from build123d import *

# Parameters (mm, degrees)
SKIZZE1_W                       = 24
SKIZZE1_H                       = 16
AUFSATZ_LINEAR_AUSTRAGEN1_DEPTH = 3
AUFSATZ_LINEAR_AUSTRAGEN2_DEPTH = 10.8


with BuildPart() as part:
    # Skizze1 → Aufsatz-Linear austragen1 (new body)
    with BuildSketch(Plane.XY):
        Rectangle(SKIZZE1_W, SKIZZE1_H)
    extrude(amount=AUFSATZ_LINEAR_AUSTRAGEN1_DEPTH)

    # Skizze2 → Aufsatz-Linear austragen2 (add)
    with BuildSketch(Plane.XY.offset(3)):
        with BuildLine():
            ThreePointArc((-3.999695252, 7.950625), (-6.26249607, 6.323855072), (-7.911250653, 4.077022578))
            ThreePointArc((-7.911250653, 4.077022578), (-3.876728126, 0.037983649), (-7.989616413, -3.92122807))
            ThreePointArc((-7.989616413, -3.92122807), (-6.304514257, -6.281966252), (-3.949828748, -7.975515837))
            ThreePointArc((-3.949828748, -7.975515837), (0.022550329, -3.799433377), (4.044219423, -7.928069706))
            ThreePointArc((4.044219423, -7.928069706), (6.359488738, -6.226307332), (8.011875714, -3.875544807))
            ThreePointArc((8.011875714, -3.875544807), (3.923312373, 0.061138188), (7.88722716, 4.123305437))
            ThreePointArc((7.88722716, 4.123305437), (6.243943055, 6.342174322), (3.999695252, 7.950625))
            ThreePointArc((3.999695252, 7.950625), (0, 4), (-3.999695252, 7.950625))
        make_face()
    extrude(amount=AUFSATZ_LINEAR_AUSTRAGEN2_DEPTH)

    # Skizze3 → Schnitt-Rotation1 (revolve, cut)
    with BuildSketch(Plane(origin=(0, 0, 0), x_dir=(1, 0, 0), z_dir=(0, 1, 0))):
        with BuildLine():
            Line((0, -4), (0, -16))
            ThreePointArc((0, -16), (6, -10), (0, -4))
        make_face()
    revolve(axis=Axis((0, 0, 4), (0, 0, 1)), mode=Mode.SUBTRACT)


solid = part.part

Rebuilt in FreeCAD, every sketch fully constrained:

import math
import FreeCAD as App
import Part
import Sketcher

V = App.Vector


def add_polygon(sketch, points):
    """Adds a closed chain of lines whose ends are joined by coincident constraints."""
    first, n = sketch.GeometryCount, len(points)
    for a, b in zip(points, points[1:] + points[:1]):
        sketch.addGeometry(Part.LineSegment(App.Vector(*a, 0), App.Vector(*b, 0)), False)
    for i in range(n):
        sketch.addConstraint(Sketcher.Constraint("Coincident", first + i, 2, first + (i + 1) % n, 1))

doc = App.newDocument("Part")
body = doc.addObject("PartDesign::Body", "Body")

sketch1 = doc.addObject("Sketcher::SketchObject", "Sketch")
body.addObject(sketch1)
sketch1.AttachmentSupport = (doc.XY_Plane, [""])
sketch1.MapMode = "FlatFace"
add_polygon(sketch1, [(-12, 8), (-12, -8), (12, -8), (12, 8)])
sketch1.addConstraint(Sketcher.Constraint("Vertical", 0))
sketch1.addConstraint(Sketcher.Constraint("Horizontal", 1))
sketch1.addConstraint(Sketcher.Constraint("Vertical", 2))
sketch1.addConstraint(Sketcher.Constraint("Horizontal", 3))
sketch1.addConstraint(Sketcher.Constraint("Symmetric", 0, 2, 2, 2, -1, 1))
sketch1.addConstraint(Sketcher.Constraint("DistanceX", 1, 1, 1, 2, 24.0))
sketch1.addConstraint(Sketcher.Constraint("DistanceY", 0, 2, 0, 1, 16.0))
pad1 = doc.addObject("PartDesign::Pad", "Pad")
body.addObject(pad1)
pad1.Profile = sketch1
pad1.Length = 3

sketch2 = doc.addObject("Sketcher::SketchObject", "Sketch001")
body.addObject(sketch2)
sketch2.AttachmentSupport = (doc.XY_Plane, [""])
sketch2.MapMode = "FlatFace"
sketch2.AttachmentOffset = App.Placement(V(0, 0, 3), App.Rotation())
sketch2.addGeometry(Part.ArcOfCircle(Part.Circle(V(0, 0, 0), V(0, 0, 1), 8.9), math.radians(117), math.radians(153)), False)
sketch2.addGeometry(Part.ArcOfCircle(Part.Circle(V(-7.9, 0.1, 0), V(0, 0, 1), 4), math.radians(-92), math.radians(90)), False)
sketch2.addGeometry(Part.ArcOfCircle(Part.Circle(V(0, 0, 0), V(0, 0, 1), 8.9), math.radians(-154), math.radians(-116)), False)
sketch2.addGeometry(Part.ArcOfCircle(Part.Circle(V(0, -7.8, 0), V(0, 0, 1), 4), math.radians(-2), math.radians(183)), False)
sketch2.addGeometry(Part.ArcOfCircle(Part.Circle(V(0, 0, 0), V(0, 0, 1), 8.9), math.radians(-63), math.radians(-26)), False)
sketch2.addGeometry(Part.ArcOfCircle(Part.Circle(V(7.9, 0.1, 0), V(0, 0, 1), 4), math.radians(91), math.radians(271)), False)
sketch2.addGeometry(Part.ArcOfCircle(Part.Circle(V(0, 0, 0), V(0, 0, 1), 8.9), math.radians(28), math.radians(63)), False)
sketch2.addGeometry(Part.ArcOfCircle(Part.Circle(V(0, 8, 0), V(0, 0, 1), 4), math.radians(-179), math.radians(-1)), False)
sketch2.addConstraint(Sketcher.Constraint("Coincident", 0, 2, 1, 2))
sketch2.addConstraint(Sketcher.Constraint("Coincident", 1, 1, 2, 1))
sketch2.addConstraint(Sketcher.Constraint("Coincident", 2, 2, 3, 2))
sketch2.addConstraint(Sketcher.Constraint("Coincident", 3, 1, 4, 1))
sketch2.addConstraint(Sketcher.Constraint("Coincident", 4, 2, 5, 2))
sketch2.addConstraint(Sketcher.Constraint("Coincident", 5, 1, 6, 1))
sketch2.addConstraint(Sketcher.Constraint("Coincident", 6, 2, 7, 2))
sketch2.addConstraint(Sketcher.Constraint("Coincident", 7, 1, 0, 1))
sketch2.addConstraint(Sketcher.Constraint("Coincident", 0, 3, -1, 1))
sketch2.addConstraint(Sketcher.Constraint("Coincident", 2, 3, -1, 1))
sketch2.addConstraint(Sketcher.Constraint("Coincident", 4, 3, -1, 1))
sketch2.addConstraint(Sketcher.Constraint("Coincident", 6, 3, -1, 1))
sketch2.addConstraint(Sketcher.Constraint("Equal", 0, 2))
sketch2.addConstraint(Sketcher.Constraint("Equal", 1, 3))
sketch2.addConstraint(Sketcher.Constraint("Equal", 2, 4))
sketch2.addConstraint(Sketcher.Constraint("Equal", 3, 5))
sketch2.addConstraint(Sketcher.Constraint("Equal", 4, 6))
sketch2.addConstraint(Sketcher.Constraint("Equal", 5, 7))
sketch2.addConstraint(Sketcher.Constraint("PointOnObject", 7, 3, -2))
sketch2.addConstraint(Sketcher.Constraint("Radius", 1, 4.0))
sketch2.addConstraint(Sketcher.Constraint("Radius", 0, 8.9))
sketch2.addConstraint(Sketcher.Constraint("DistanceY", -1, 1, 7, 3, 8.0))
sketch2.addConstraint(Sketcher.Constraint("DistanceY", 1, 1, 1, 3, 3.998401))
sketch2.addConstraint(Sketcher.Constraint("DistanceX", 5, 1, 5, 3, 0.0356))
sketch2.addConstraint(Sketcher.Constraint("DistanceX", -1, 1, 3, 3, 0.046291))
sketch2.addConstraint(Sketcher.Constraint("DistanceX", 0, 2, -1, 1, 7.911251))
sketch2.addConstraint(Sketcher.Constraint("DistanceX", 2, 2, -1, 1, 3.949829))
sketch2.addConstraint(Sketcher.Constraint("DistanceY", 1, 3, 5, 3, 0.046291))
pad2 = doc.addObject("PartDesign::Pad", "Pad001")
body.addObject(pad2)
pad2.Profile = sketch2
pad2.Length = 10.8

sketch3 = doc.addObject("Sketcher::SketchObject", "Sketch002")
body.addObject(sketch3)
sketch3.AttachmentSupport = (doc.XZ_Plane, [""])
sketch3.MapMode = "FlatFace"
sketch3.addGeometry(Part.LineSegment(V(0, 4, 0), V(0, 16, 0)), False)
sketch3.addGeometry(Part.ArcOfCircle(Part.Circle(V(0, 10, 0), V(0, 0, 1), 6), math.radians(-90), math.radians(90)), False)
sketch3.addConstraint(Sketcher.Constraint("Coincident", 0, 1, 1, 1))
sketch3.addConstraint(Sketcher.Constraint("Coincident", 1, 2, 0, 2))
sketch3.addConstraint(Sketcher.Constraint("Vertical", 0))
sketch3.addConstraint(Sketcher.Constraint("PointOnObject", 1, 3, -2))
sketch3.addConstraint(Sketcher.Constraint("PointOnObject", 0, 1, -2))
sketch3.addConstraint(Sketcher.Constraint("Radius", 1, 6.0))
sketch3.addConstraint(Sketcher.Constraint("DistanceY", -1, 1, 1, 3, 10.0))
groove = doc.addObject("PartDesign::Groove", "Groove")
body.addObject(groove)
groove.Profile = sketch3
groove.ReferenceAxis = (sketch3, ["V_Axis"])
groove.Angle = 360

doc.recompute()
